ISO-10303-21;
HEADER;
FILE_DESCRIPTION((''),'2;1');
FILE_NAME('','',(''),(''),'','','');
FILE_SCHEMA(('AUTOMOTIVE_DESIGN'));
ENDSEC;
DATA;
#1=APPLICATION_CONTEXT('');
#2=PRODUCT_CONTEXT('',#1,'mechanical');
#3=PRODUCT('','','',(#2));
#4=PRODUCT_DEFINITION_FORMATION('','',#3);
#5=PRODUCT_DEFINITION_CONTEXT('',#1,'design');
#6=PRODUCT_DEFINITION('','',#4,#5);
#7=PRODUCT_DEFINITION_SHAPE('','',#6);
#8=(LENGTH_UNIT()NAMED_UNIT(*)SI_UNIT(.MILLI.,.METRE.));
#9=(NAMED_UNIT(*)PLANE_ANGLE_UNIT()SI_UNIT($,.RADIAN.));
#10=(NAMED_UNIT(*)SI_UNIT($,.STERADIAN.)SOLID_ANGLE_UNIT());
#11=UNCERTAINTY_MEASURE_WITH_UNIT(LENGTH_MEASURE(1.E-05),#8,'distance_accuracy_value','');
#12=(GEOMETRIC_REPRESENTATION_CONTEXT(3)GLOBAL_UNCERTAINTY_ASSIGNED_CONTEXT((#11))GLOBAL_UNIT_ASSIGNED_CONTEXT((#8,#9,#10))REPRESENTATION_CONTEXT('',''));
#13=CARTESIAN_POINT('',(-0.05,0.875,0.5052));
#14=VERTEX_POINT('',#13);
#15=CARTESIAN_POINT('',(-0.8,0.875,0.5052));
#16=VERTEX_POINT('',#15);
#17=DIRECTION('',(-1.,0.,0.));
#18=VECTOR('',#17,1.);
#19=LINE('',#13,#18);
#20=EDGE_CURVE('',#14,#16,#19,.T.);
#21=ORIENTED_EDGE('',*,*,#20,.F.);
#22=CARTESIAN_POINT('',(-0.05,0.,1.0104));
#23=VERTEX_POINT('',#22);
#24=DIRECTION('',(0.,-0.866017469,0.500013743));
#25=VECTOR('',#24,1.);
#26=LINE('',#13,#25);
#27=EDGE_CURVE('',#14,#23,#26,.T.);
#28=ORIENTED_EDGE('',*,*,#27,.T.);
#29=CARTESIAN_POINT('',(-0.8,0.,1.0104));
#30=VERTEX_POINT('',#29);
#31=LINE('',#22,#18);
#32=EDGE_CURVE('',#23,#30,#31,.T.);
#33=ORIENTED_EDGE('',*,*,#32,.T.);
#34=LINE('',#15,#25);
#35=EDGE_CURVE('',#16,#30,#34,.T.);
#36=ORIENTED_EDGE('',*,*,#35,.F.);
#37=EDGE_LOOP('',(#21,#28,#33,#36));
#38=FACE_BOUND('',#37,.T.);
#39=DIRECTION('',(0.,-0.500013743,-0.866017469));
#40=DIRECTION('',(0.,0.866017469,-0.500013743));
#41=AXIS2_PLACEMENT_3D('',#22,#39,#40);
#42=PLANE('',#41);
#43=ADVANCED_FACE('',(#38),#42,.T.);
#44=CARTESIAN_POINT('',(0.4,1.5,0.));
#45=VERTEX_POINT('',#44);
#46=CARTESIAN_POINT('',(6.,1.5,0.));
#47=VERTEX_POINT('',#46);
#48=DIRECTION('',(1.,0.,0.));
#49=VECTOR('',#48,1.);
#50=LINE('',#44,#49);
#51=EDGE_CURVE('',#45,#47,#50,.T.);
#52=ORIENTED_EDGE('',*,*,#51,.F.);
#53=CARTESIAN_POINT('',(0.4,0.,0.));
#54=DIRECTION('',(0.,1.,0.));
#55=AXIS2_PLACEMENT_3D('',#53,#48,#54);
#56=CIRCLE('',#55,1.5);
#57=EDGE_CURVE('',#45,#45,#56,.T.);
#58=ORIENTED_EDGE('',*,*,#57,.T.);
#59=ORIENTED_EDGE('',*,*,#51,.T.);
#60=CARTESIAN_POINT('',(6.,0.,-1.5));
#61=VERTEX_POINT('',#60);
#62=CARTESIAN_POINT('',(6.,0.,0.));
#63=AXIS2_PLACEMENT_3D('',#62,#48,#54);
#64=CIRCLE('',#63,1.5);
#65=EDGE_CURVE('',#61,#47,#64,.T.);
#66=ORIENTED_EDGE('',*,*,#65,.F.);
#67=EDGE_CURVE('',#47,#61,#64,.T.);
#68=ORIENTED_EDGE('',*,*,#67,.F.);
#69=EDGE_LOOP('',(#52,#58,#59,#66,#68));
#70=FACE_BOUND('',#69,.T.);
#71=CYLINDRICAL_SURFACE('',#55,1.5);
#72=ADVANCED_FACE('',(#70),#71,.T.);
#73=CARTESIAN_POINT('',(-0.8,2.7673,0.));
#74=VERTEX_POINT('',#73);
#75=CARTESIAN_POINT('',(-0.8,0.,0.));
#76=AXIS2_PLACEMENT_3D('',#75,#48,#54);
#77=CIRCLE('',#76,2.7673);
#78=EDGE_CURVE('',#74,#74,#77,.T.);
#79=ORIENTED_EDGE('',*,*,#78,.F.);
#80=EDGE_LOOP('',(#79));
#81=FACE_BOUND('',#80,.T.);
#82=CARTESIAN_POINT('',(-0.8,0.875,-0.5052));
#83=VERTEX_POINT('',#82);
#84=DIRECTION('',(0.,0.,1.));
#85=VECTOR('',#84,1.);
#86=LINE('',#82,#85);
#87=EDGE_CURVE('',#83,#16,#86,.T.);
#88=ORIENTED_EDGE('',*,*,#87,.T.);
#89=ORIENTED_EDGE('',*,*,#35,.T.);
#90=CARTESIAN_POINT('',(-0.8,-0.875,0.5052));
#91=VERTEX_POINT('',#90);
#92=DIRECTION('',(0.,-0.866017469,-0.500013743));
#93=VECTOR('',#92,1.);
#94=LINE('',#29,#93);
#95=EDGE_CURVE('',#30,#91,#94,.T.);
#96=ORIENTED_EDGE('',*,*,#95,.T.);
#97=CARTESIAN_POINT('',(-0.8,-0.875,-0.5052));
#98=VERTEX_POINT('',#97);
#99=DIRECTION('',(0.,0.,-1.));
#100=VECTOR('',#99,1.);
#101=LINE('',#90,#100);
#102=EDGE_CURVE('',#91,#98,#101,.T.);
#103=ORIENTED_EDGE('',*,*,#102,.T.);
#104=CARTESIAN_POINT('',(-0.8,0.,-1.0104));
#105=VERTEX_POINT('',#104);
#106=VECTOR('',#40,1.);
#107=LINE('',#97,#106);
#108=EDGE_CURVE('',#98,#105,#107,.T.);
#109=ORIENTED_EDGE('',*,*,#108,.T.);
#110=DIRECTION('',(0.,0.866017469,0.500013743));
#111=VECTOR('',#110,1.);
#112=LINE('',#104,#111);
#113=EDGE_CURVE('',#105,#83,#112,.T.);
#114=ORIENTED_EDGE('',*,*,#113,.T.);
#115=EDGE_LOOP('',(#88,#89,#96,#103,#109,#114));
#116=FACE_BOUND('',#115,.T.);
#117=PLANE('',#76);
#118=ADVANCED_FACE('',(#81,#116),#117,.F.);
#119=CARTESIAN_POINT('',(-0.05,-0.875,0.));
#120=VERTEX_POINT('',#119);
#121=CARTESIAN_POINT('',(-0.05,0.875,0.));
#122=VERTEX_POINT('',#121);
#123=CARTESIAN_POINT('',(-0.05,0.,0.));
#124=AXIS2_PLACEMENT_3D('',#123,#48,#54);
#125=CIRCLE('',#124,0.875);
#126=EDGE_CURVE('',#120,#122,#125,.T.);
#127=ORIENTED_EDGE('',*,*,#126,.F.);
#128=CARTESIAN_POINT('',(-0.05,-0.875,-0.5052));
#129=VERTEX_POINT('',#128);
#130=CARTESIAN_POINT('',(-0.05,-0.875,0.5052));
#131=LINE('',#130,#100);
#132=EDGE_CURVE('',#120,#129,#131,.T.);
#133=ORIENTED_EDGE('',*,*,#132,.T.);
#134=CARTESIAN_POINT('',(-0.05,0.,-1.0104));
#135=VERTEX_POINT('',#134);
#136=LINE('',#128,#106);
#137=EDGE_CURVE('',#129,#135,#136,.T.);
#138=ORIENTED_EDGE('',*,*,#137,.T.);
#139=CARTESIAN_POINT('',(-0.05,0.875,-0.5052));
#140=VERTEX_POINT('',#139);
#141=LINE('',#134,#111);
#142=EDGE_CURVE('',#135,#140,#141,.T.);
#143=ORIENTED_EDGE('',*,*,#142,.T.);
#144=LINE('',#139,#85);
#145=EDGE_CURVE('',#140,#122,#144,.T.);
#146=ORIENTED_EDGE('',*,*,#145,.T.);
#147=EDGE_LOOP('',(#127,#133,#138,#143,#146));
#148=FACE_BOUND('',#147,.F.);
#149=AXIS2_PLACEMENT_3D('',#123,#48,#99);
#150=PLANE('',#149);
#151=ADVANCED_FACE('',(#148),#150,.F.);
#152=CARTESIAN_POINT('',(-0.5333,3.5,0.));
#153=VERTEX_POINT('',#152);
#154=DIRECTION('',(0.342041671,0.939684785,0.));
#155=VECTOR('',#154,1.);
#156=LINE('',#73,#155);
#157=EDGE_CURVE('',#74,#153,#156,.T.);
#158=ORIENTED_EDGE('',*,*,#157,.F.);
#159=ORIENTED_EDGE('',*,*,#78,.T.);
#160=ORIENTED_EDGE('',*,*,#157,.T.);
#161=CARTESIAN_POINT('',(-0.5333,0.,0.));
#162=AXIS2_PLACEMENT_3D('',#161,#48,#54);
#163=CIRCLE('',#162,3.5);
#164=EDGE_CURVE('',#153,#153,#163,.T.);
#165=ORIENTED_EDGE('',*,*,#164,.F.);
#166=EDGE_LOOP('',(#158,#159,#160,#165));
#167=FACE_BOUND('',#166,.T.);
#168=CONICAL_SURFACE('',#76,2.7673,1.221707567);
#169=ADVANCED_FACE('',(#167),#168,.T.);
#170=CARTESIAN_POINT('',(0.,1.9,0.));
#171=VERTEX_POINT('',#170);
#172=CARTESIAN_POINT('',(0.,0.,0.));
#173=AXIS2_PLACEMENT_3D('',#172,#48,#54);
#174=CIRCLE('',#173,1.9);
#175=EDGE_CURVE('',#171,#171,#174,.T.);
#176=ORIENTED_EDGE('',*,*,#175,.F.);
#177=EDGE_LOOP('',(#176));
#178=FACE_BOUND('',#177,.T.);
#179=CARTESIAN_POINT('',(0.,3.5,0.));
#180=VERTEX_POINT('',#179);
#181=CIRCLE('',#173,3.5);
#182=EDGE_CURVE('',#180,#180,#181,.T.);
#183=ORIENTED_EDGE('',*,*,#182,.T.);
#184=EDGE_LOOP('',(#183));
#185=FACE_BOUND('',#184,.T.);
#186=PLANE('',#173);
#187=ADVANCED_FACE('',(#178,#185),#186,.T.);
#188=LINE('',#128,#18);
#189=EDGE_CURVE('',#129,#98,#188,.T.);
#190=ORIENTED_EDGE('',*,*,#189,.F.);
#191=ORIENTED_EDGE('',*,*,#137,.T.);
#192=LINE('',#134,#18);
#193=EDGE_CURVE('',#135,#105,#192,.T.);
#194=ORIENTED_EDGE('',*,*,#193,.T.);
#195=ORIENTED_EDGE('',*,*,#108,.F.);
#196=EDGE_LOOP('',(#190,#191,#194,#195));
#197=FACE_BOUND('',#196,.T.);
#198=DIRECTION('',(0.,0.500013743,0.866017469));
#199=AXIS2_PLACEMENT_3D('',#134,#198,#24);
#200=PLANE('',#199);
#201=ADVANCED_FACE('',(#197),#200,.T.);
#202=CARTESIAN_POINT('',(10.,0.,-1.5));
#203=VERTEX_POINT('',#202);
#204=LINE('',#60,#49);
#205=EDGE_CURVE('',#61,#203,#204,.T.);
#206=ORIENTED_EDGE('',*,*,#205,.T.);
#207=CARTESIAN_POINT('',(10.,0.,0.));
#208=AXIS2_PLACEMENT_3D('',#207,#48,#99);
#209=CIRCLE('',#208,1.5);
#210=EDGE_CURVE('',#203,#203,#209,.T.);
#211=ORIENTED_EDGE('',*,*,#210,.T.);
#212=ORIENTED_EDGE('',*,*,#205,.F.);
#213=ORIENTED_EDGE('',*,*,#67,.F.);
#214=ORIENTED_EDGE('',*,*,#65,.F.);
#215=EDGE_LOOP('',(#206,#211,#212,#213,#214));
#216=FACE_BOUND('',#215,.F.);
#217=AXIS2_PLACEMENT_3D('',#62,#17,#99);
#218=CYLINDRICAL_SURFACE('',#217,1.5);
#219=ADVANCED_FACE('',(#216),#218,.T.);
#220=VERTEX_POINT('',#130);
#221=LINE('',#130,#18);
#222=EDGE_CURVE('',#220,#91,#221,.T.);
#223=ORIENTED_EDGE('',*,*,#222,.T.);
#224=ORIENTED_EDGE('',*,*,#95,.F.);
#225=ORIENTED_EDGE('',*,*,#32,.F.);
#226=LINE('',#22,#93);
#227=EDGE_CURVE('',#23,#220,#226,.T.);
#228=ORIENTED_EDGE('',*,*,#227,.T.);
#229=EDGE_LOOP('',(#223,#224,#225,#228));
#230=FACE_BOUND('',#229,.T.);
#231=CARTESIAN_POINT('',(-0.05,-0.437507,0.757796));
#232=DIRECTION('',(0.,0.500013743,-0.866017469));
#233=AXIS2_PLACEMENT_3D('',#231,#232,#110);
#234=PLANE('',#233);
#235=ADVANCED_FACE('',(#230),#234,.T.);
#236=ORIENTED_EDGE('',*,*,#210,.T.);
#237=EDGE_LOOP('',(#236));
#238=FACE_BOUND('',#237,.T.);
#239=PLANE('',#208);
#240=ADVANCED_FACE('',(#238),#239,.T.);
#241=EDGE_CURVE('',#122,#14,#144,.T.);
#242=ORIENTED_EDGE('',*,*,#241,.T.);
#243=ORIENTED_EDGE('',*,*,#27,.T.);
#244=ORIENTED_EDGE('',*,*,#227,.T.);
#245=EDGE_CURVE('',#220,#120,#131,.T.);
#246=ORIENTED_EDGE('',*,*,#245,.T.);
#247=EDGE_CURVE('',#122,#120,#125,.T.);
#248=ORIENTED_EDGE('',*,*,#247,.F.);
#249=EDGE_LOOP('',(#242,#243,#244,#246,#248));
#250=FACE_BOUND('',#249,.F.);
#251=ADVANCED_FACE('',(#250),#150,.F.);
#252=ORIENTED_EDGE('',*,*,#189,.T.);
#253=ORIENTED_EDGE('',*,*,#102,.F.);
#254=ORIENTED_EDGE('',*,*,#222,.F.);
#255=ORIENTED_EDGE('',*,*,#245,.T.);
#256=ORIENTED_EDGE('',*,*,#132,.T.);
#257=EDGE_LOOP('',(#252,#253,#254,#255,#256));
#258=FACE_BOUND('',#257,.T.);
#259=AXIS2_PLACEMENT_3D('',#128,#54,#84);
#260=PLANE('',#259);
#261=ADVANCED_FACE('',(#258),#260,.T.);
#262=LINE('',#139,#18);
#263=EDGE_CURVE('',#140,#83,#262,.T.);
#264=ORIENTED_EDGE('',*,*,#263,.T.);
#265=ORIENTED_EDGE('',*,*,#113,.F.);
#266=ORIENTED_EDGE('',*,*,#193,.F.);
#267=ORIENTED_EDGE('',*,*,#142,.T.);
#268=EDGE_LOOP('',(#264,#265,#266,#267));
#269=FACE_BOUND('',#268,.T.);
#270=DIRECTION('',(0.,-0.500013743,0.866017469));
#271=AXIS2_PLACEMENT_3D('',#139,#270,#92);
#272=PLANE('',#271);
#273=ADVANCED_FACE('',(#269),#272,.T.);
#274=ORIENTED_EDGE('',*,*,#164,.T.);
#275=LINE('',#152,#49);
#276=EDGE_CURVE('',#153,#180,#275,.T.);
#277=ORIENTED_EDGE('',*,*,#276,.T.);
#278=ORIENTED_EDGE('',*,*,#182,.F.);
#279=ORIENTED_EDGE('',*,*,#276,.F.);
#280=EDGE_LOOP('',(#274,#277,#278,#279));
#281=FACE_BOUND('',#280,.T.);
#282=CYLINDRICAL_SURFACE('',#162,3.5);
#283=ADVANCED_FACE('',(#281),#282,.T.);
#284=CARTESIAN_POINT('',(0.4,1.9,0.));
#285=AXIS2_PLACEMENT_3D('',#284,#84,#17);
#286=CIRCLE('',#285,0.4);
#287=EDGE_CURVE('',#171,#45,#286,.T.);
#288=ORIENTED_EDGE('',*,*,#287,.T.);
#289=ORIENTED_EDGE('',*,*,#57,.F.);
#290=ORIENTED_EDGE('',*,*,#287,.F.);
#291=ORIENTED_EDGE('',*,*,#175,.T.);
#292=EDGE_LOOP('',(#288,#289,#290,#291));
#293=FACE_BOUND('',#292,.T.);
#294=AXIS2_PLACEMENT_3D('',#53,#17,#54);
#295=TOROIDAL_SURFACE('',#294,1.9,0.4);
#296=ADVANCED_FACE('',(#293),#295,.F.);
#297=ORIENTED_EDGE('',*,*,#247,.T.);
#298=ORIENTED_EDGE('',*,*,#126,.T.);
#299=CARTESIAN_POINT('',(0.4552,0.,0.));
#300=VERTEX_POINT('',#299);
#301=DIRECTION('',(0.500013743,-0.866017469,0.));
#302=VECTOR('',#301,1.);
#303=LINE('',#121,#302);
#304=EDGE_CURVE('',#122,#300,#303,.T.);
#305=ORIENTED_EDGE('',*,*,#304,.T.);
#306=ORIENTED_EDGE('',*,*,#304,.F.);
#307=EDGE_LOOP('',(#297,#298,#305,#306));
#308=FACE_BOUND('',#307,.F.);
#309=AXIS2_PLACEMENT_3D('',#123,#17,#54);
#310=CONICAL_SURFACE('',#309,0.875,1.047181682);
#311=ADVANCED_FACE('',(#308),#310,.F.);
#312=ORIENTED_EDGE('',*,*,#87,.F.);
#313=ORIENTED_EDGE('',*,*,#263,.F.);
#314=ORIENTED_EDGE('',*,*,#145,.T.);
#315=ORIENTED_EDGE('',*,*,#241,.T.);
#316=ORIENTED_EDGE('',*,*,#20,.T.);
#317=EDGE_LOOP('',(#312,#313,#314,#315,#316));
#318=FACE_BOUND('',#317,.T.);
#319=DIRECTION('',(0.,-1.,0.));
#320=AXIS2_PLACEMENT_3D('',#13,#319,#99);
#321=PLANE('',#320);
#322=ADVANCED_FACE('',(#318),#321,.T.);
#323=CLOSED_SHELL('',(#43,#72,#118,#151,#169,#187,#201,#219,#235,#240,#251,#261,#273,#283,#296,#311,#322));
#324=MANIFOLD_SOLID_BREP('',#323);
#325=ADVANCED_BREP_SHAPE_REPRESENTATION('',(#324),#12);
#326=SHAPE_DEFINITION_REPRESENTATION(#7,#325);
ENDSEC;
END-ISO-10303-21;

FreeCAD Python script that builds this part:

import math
import FreeCAD as App
import Part
import Sketcher
from FreeCAD import Vector
Q = App.Units.Quantity


def add_polygon(sketch, points):
    """Adds a closed chain of lines whose ends are joined by coincident constraints."""
    first, n = sketch.GeometryCount, len(points)
    for a, b in zip(points, points[1:] + points[:1]):
        sketch.addGeometry(Part.LineSegment(App.Vector(*a, 0), App.Vector(*b, 0)), False)
    for i in range(n):
        sketch.addConstraint(Sketcher.Constraint("Coincident", first + i, 2, first + (i + 1) % n, 1))

doc = App.newDocument("Part")
params = doc.addObject("Spreadsheet::Sheet", "Params")
for row, (alias, value) in enumerate([
    ("sketch1_radius", "0.4 mm"),
    ("sketch1_width", "6.8 mm"),
    ("sketch1_height", "1.5 mm"),
    ("sketch1_height2", "1.6 mm"),
    ("revolution_angle", "360 deg"),
    ("pocket1_length", "0.75 mm"),
    ("groove_angle", "360 deg"),
    ("sketch4_diameter", "3 mm"),
    ("pad1_length", "4 mm"),
], start=1):
    params.set(f"A{row}", alias)
    params.set(f"B{row}", "=" + value)
    params.setAlias(f"B{row}", alias)

body = doc.addObject("PartDesign::Body", "Body")

sketch1 = doc.addObject("Sketcher::SketchObject", "Sketch")
body.addObject(sketch1)
sketch1.AttachmentSupport = (doc.XY_Plane, [""])
sketch1.MapMode = "FlatFace"
sketch1.addGeometry([
    Part.LineSegment(Vector(-0.8, 0, 0), Vector(6, 0, 0)),
    Part.LineSegment(Vector(6, 0, 0), Vector(6, 1.5, 0)),
    Part.LineSegment(Vector(6, 1.5, 0), Vector(0.4, 1.5, 0)),
    Part.ArcOfCircle(Part.Circle(Vector(0.4, 1.9, 0), Vector(0, 0, 1), 0.4), math.radians(180), math.radians(270)),
    Part.LineSegment(Vector(0, 1.9, 0), Vector(0, 3.5, 0)),
    Part.LineSegment(Vector(0, 3.5, 0), Vector(-0.53, 3.5, 0)),
    Part.LineSegment(Vector(-0.53, 3.5, 0), Vector(-0.8, 2.77, 0)),
    Part.LineSegment(Vector(-0.8, 2.77, 0), Vector(-0.8, 0, 0)),
], False)
sketch1.addConstraint([
    Sketcher.Constraint("Coincident", 0, 2, 1, 1),
    Sketcher.Constraint("Coincident", 1, 2, 2, 1),
    Sketcher.Constraint("Tangent", 2, 2, 3, 2),
    Sketcher.Constraint("Tangent", 3, 1, 4, 1),
    Sketcher.Constraint("Coincident", 4, 2, 5, 1),
    Sketcher.Constraint("Coincident", 5, 2, 6, 1),
    Sketcher.Constraint("Coincident", 6, 2, 7, 1),
    Sketcher.Constraint("Coincident", 7, 2, 0, 1),
    Sketcher.Constraint("Horizontal", 0),
    Sketcher.Constraint("Vertical", 1),
    Sketcher.Constraint("Horizontal", 2),
    Sketcher.Constraint("Vertical", 4),
    Sketcher.Constraint("Horizontal", 5),
    Sketcher.Constraint("Vertical", 7),
    Sketcher.Constraint("PointOnObject", 0, 2, -1),
    Sketcher.Constraint("PointOnObject", 3, 1, -2),
    Sketcher.Constraint("DistanceX", -1, 1, 0, 2, Q("6 mm")),
    Sketcher.Constraint("Radius", 3, Q("0.4 mm")),
    Sketcher.Constraint("DistanceX", 0, 1, 0, 2, Q("6.8 mm")),
    Sketcher.Constraint("DistanceY", 1, 1, 1, 2, Q("1.5 mm")),
    Sketcher.Constraint("DistanceY", 4, 1, 4, 2, Q("1.6 mm")),
    Sketcher.Constraint("DistanceX", 5, 2, 5, 1, Q("0.5333 mm")),
    Sketcher.Constraint("DistanceY", 7, 2, 7, 1, Q("2.7673 mm")),
])
sketch1.setExpression("Constraints[17]", "Params.sketch1_radius")
sketch1.setExpression("Constraints[18]", "Params.sketch1_width")
sketch1.setExpression("Constraints[19]", "Params.sketch1_height")
sketch1.setExpression("Constraints[20]", "Params.sketch1_height2")
revolution = doc.addObject("PartDesign::Revolution", "Revolution")
body.addObject(revolution)
revolution.Profile = sketch1
revolution.ReferenceAxis = (sketch1, ["H_Axis"])
revolution.setExpression("Angle", "Params.revolution_angle")

sketch2 = doc.addObject("Sketcher::SketchObject", "Sketch001")
body.addObject(sketch2)
sketch2.AttachmentSupport = (doc.YZ_Plane, [""])
sketch2.MapMode = "FlatFace"
sketch2.AttachmentOffset = App.Placement(Vector(0, 0, -0.05), App.Rotation())
add_polygon(sketch2, [(0, 1), (-0.9, 0.5), (-0.9, -0.5), (0, -1), (0.9, -0.5), (0.9, 0.5)])
sketch2.addConstraint([
    Sketcher.Constraint("Vertical", 1),
    Sketcher.Constraint("Vertical", 4),
    Sketcher.Constraint("Symmetric", 0, 2, 3, 2, -1, 1),
    Sketcher.Constraint("Symmetric", 2, 2, 5, 2, -1, 1),
    Sketcher.Constraint("PointOnObject", 2, 2, -2),
    Sketcher.Constraint("Parallel", 2, 5),
    Sketcher.Constraint("Horizontal", 1, 2, 3, 2),
    Sketcher.Constraint("Angle", 0, Q("-149.999 deg")),
    Sketcher.Constraint("DistanceX", 1, 2, 3, 2, Q("1.75 mm")),
    Sketcher.Constraint("DistanceY", 1, 2, 1, 1, Q("1.0104 mm")),
])
pocket1 = doc.addObject("PartDesign::Pocket", "Pocket")
body.addObject(pocket1)
pocket1.Profile = sketch2
pocket1.setExpression("Length", "Params.pocket1_length")

sketch3 = doc.addObject("Sketcher::SketchObject", "Sketch002")
body.addObject(sketch3)
sketch3.AttachmentSupport = (doc.XY_Plane, [""])
sketch3.MapMode = "FlatFace"
add_polygon(sketch3, [(-0.1, 0), (0.5, 0), (-0.1, 0.9)])
sketch3.addConstraint([
    Sketcher.Constraint("Horizontal", 0),
    Sketcher.Constraint("Vertical", 2),
    Sketcher.Constraint("PointOnObject", 0, 2, -1),
    Sketcher.Constraint("Angle", 1, Q("120.001 deg")),
    Sketcher.Constraint("DistanceY", 2, 2, 2, 1, Q("0.875 mm")),
    Sketcher.Constraint("DistanceX", 1, 2, -1, 1, Q("0.05 mm")),
])
groove = doc.addObject("PartDesign::Groove", "Groove")
body.addObject(groove)
groove.Profile = sketch3
groove.ReferenceAxis = (sketch3, ["H_Axis"])
groove.setExpression("Angle", "Params.groove_angle")

sketch4 = doc.addObject("Sketcher::SketchObject", "Sketch003")
body.addObject(sketch4)
sketch4.AttachmentSupport = (doc.YZ_Plane, [""])
sketch4.MapMode = "FlatFace"
sketch4.AttachmentOffset = App.Placement(Vector(0, 0, 6), App.Rotation())
sketch4.addGeometry(Part.Circle(Vector(0, 0, 0), Vector(0, 0, 1), 1.5), False)
sketch4.addConstraint([
    Sketcher.Constraint("Coincident", 0, 3, -1, 1),
    Sketcher.Constraint("Diameter", 0, Q("3 mm")),
])
sketch4.setExpression("Constraints[1]", "Params.sketch4_diameter")
pad1 = doc.addObject("PartDesign::Pad", "Pad")
body.addObject(pad1)
pad1.Profile = sketch4
pad1.setExpression("Length", "Params.pad1_length")

doc.recompute()
